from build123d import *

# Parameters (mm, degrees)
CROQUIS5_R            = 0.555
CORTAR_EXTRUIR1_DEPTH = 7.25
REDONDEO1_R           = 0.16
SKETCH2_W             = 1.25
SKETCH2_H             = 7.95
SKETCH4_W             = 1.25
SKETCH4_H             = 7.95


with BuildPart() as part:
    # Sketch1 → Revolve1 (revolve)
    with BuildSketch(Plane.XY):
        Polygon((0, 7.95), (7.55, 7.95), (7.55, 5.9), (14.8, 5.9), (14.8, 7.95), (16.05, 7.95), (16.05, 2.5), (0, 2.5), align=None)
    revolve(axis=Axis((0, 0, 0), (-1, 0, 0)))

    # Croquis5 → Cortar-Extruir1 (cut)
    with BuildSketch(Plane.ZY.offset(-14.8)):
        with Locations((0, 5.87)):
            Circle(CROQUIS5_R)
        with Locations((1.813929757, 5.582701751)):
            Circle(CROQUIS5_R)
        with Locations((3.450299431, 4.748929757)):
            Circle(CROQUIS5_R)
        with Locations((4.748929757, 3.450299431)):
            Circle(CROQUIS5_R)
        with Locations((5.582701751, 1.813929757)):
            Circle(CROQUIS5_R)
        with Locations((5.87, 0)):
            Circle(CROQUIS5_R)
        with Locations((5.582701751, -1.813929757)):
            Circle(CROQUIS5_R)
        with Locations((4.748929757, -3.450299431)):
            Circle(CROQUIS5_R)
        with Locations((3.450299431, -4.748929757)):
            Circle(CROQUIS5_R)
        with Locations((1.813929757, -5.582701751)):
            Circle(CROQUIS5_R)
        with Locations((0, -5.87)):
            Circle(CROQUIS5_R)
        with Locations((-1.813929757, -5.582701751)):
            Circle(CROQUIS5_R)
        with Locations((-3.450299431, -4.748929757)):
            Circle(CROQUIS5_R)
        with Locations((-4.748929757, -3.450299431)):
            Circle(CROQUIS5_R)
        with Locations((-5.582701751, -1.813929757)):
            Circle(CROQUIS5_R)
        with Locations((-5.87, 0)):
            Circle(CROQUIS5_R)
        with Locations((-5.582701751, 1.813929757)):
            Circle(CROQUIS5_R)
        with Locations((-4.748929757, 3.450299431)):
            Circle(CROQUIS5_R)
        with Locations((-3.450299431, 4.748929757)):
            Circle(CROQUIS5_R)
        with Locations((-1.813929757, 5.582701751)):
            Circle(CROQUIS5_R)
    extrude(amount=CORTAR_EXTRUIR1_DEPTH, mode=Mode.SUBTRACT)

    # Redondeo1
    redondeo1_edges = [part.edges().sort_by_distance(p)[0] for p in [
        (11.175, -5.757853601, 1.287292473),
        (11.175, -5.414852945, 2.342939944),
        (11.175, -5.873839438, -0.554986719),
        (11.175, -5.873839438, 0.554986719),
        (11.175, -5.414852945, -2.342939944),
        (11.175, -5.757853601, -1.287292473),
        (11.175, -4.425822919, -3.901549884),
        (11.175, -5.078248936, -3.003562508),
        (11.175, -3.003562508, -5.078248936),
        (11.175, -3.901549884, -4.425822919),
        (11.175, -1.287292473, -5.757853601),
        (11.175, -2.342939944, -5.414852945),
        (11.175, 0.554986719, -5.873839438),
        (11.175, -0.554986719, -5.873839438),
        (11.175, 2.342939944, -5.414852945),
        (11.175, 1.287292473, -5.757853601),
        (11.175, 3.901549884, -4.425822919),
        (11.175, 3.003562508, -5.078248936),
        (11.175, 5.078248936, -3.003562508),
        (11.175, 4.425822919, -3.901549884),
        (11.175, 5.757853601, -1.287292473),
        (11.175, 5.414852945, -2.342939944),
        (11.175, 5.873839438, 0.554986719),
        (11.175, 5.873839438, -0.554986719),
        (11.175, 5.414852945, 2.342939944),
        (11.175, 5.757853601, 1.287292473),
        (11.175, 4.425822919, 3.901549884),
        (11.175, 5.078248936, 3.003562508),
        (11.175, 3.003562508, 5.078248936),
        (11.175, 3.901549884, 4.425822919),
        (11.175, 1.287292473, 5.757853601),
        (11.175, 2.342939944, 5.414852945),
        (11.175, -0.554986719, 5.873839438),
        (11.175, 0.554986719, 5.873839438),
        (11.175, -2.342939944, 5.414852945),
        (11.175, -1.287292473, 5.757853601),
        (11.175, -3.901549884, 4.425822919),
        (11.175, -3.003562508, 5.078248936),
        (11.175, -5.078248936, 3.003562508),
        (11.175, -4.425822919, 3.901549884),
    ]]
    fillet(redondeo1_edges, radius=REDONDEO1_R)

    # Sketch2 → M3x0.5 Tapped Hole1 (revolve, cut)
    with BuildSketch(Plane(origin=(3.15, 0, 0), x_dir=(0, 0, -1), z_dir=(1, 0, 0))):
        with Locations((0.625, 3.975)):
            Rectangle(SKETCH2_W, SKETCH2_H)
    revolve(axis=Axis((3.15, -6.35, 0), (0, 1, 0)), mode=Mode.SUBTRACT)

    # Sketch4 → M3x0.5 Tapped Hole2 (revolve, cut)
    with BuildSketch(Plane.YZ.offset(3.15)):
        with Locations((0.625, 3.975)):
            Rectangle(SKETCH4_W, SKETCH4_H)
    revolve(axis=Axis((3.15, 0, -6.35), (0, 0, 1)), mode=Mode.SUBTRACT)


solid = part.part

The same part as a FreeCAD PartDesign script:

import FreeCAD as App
import Part
import Sketcher
Q = App.Units.Quantity


def edges_at(feature, points):
    """Names of the edges that pass closest to the given points."""
    edges = feature.Shape.Edges
    near = lambda p: min(range(len(edges)), key=lambda i: edges[i].distToShape(Part.Vertex(*p))[0])
    return sorted({f"Edge{near(p) + 1}" for p in points})


def add_polygon(sketch, points):
    """Adds a closed chain of lines whose ends are joined by coincident constraints."""
    first, n = sketch.GeometryCount, len(points)
    for a, b in zip(points, points[1:] + points[:1]):
        sketch.addGeometry(Part.LineSegment(App.Vector(*a, 0), App.Vector(*b, 0)), False)
    for i in range(n):
        sketch.addConstraint(Sketcher.Constraint("Coincident", first + i, 2, first + (i + 1) % n, 1))

doc = App.newDocument("Part")
body = doc.addObject("PartDesign::Body", "Body")

sketch1 = doc.addObject("Sketcher::SketchObject", "Sketch")
body.addObject(sketch1)
sketch1.AttachmentSupport = (doc.XY_Plane, [""])
sketch1.MapMode = "FlatFace"
add_polygon(sketch1, [(7.5, 8), (0, 8), (0, 2.5), (16.1, 2.5), (16.1, 8), (14.8, 8), (14.8, 5.9), (7.5, 5.9)])
sketch1.addConstraint([
    Sketcher.Constraint("Horizontal", 0),
    Sketcher.Constraint("Vertical", 1),
    Sketcher.Constraint("Horizontal", 2),
    Sketcher.Constraint("Vertical", 3),
    Sketcher.Constraint("Horizontal", 4),
    Sketcher.Constraint("Vertical", 5),
    Sketcher.Constraint("Horizontal", 6),
    Sketcher.Constraint("Vertical", 7),
    Sketcher.Constraint("PointOnObject", 0, 2, -2),
    Sketcher.Constraint("Horizontal", 0, 2, 3, 2),
    Sketcher.Constraint("DistanceX", 0, 2, 0, 1, Q("7.55 mm")),
    Sketcher.Constraint("DistanceX", 2, 1, 2, 2, Q("16.05 mm")),
    Sketcher.Constraint("DistanceX", 4, 2, 4, 1, Q("1.25 mm")),
    Sketcher.Constraint("DistanceY", 1, 2, 1, 1, Q("5.45 mm")),
    Sketcher.Constraint("DistanceY", 5, 2, 5, 1, Q("2.05 mm")),
    Sketcher.Constraint("DistanceY", -1, 1, 1, 2, Q("2.5 mm")),
])
revolution = doc.addObject("PartDesign::Revolution", "Revolution")
body.addObject(revolution)
revolution.Profile = sketch1
revolution.ReferenceAxis = (sketch1, ["H_Axis"])
revolution.Angle = 360

sketch2 = doc.addObject("Sketcher::SketchObject", "Sketch001")
body.addObject(sketch2)
sketch2.AttachmentSupport = (doc.YZ_Plane, [""])
sketch2.MapMode = "FlatFace"
sketch2.AttachmentOffset = App.Placement(App.Vector(0, 0, 14.8), App.Rotation())
sketch2.addGeometry([
    Part.Circle(App.Vector(5.9, 0, 0), App.Vector(0, 0, 1), 0.6),
    Part.Circle(App.Vector(5.6, 1.8, 0), App.Vector(0, 0, 1), 0.6),
    Part.Circle(App.Vector(4.7, 3.5, 0), App.Vector(0, 0, 1), 0.6),
    Part.Circle(App.Vector(3.5, 4.7, 0), App.Vector(0, 0, 1), 0.6),
    Part.Circle(App.Vector(1.8, 5.6, 0), App.Vector(0, 0, 1), 0.6),
    Part.Circle(App.Vector(0, 5.9, 0), App.Vector(0, 0, 1), 0.6),
    Part.Circle(App.Vector(-1.8, 5.6, 0), App.Vector(0, 0, 1), 0.6),
    Part.Circle(App.Vector(-3.5, 4.7, 0), App.Vector(0, 0, 1), 0.6),
    Part.Circle(App.Vector(-4.7, 3.5, 0), App.Vector(0, 0, 1), 0.6),
    Part.Circle(App.Vector(-5.6, 1.8, 0), App.Vector(0, 0, 1), 0.6),
    Part.Circle(App.Vector(-5.9, 0, 0), App.Vector(0, 0, 1), 0.6),
    Part.Circle(App.Vector(-5.6, -1.8, 0), App.Vector(0, 0, 1), 0.6),
    Part.Circle(App.Vector(-4.7, -3.5, 0), App.Vector(0, 0, 1), 0.6),
    Part.Circle(App.Vector(-3.5, -4.7, 0), App.Vector(0, 0, 1), 0.6),
    Part.Circle(App.Vector(-1.8, -5.6, 0), App.Vector(0, 0, 1), 0.6),
    Part.Circle(App.Vector(0, -5.9, 0), App.Vector(0, 0, 1), 0.6),
    Part.Circle(App.Vector(1.8, -5.6, 0), App.Vector(0, 0, 1), 0.6),
    Part.Circle(App.Vector(3.5, -4.7, 0), App.Vector(0, 0, 1), 0.6),
    Part.Circle(App.Vector(4.7, -3.5, 0), App.Vector(0, 0, 1), 0.6),
    Part.Circle(App.Vector(5.6, -1.8, 0), App.Vector(0, 0, 1), 0.6),
], False)
sketch2.addConstraint([
    Sketcher.Constraint("Equal", 0, 1),
    Sketcher.Constraint("Equal", 1, 2),
    Sketcher.Constraint("Equal", 2, 3),
    Sketcher.Constraint("Equal", 3, 4),
    Sketcher.Constraint("Equal", 4, 5),
    Sketcher.Constraint("Equal", 5, 6),
    Sketcher.Constraint("Equal", 6, 7),
    Sketcher.Constraint("Equal", 7, 8),
    Sketcher.Constraint("Equal", 8, 9),
    Sketcher.Constraint("Equal", 9, 10),
    Sketcher.Constraint("Equal", 10, 11),
    Sketcher.Constraint("Equal", 11, 12),
    Sketcher.Constraint("Equal", 12, 13),
    Sketcher.Constraint("Equal", 13, 14),
    Sketcher.Constraint("Equal", 14, 15),
    Sketcher.Constraint("Equal", 15, 16),
    Sketcher.Constraint("Equal", 16, 17),
    Sketcher.Constraint("Equal", 17, 18),
    Sketcher.Constraint("Equal", 18, 19),
    Sketcher.Constraint("Symmetric", 0, 3, 10, 3, -1, 1),
    Sketcher.Constraint("Symmetric", 1, 3, 11, 3, -1, 1),
    Sketcher.Constraint("Symmetric", 2, 3, 12, 3, -1, 1),
    Sketcher.Constraint("Symmetric", 3, 3, 13, 3, -1, 1),
    Sketcher.Constraint("Symmetric", 4, 3, 14, 3, -1, 1),
    Sketcher.Constraint("Symmetric", 5, 3, 15, 3, -1, 1),
    Sketcher.Constraint("Symmetric", 6, 3, 16, 3, -1, 1),
    Sketcher.Constraint("Symmetric", 7, 3, 17, 3, -1, 1),
    Sketcher.Constraint("Symmetric", 8, 3, 18, 3, -1, 1),
    Sketcher.Constraint("Symmetric", 9, 3, 19, 3, -1, 1),
    Sketcher.Constraint("Symmetric", 4, 3, 6, 3, -2),
    Sketcher.Constraint("Symmetric", 3, 3, 7, 3, -2),
    Sketcher.Constraint("Symmetric", 2, 3, 8, 3, -2),
    Sketcher.Constraint("Symmetric", 1, 3, 9, 3, -2),
    Sketcher.Constraint("PointOnObject", 0, 3, -1),
    Sketcher.Constraint("PointOnObject", 5, 3, -2),
    Sketcher.Constraint("Diameter", 0, Q("1.11 mm")),
    Sketcher.Constraint("DistanceX", -1, 1, 0, 3, Q("5.87 mm")),
    Sketcher.Constraint("DistanceY", -1, 1, 5, 3, Q("5.87 mm")),
    Sketcher.Constraint("DistanceY", 1, 3, 3, 3, Q("2.935 mm")),
    Sketcher.Constraint("DistanceX", 4, 3, 2, 3, Q("2.935 mm")),
    Sketcher.Constraint("DistanceX", -1, 1, 1, 3, Q("5.582702 mm")),
    Sketcher.Constraint("DistanceY", -1, 1, 2, 3, Q("3.450299 mm")),
    Sketcher.Constraint("DistanceX", -1, 1, 3, 3, Q("3.450299 mm")),
    Sketcher.Constraint("DistanceY", -1, 1, 4, 3, Q("5.582702 mm")),
    Sketcher.Constraint("DistanceY", -1, 1, 1, 3, Q("1.81393 mm")),
    Sketcher.Constraint("DistanceX", -1, 1, 2, 3, Q("4.74893 mm")),
])
pocket1 = doc.addObject("PartDesign::Pocket", "Pocket")
body.addObject(pocket1)
pocket1.Profile = sketch2
pocket1.Length = 7.25
doc.recompute()

fillet = doc.addObject("PartDesign::Fillet", "Fillet")
body.addObject(fillet)
fillet.Base = (pocket1, edges_at(pocket1, [
    (11.175, -5.758, 1.287),
    (11.175, -5.415, 2.343),
    (11.175, -5.874, -0.555),
    (11.175, -5.874, 0.555),
    (11.175, -5.415, -2.343),
    (11.175, -5.758, -1.287),
    (11.175, -4.426, -3.902),
    (11.175, -5.078, -3.004),
    (11.175, -3.004, -5.078),
    (11.175, -3.902, -4.426),
    (11.175, -1.287, -5.758),
    (11.175, -2.343, -5.415),
    (11.175, 0.555, -5.874),
    (11.175, -0.555, -5.874),
    (11.175, 2.343, -5.415),
    (11.175, 1.287, -5.758),
    (11.175, 3.902, -4.426),
    (11.175, 3.004, -5.078),
    (11.175, 5.078, -3.004),
    (11.175, 4.426, -3.902),
    (11.175, 5.758, -1.287),
    (11.175, 5.415, -2.343),
    (11.175, 5.874, 0.555),
    (11.175, 5.874, -0.555),
    (11.175, 5.415, 2.343),
    (11.175, 5.758, 1.287),
    (11.175, 4.426, 3.902),
    (11.175, 5.078, 3.004),
    (11.175, 3.004, 5.078),
    (11.175, 3.902, 4.426),
    (11.175, 1.287, 5.758),
    (11.175, 2.343, 5.415),
    (11.175, -0.555, 5.874),
    (11.175, 0.555, 5.874),
    (11.175, -2.343, 5.415),
    (11.175, -1.287, 5.758),
    (11.175, -3.902, 4.426),
    (11.175, -3.004, 5.078),
    (11.175, -5.078, 3.004),
    (11.175, -4.426, 3.902),
]))
fillet.Radius = 0.16

sketch3 = doc.addObject("Sketcher::SketchObject", "Sketch002")
body.addObject(sketch3)
sketch3.AttachmentSupport = (doc.YZ_Plane, [""])
sketch3.MapMode = "FlatFace"
sketch3.AttachmentOffset = App.Placement(App.Vector(0, 0, 3.15), App.Rotation())
add_polygon(sketch3, [(8, 0), (0, 0), (0, -1.2), (8, -1.2)])
sketch3.addConstraint([
    Sketcher.Constraint("Horizontal", 0),
    Sketcher.Constraint("Vertical", 1),
    Sketcher.Constraint("Horizontal", 2),
    Sketcher.Constraint("Vertical", 3),
    Sketcher.Constraint("Coincident", 0, 2, -1, 1),
    Sketcher.Constraint("DistanceX", 0, 2, 0, 1, Q("7.95 mm")),
    Sketcher.Constraint("DistanceY", 1, 2, 1, 1, Q("1.25 mm")),
])
groove = doc.addObject("PartDesign::Groove", "Groove")
body.addObject(groove)
groove.Profile = sketch3
groove.ReferenceAxis = (sketch3, ["H_Axis"])
groove.Angle = 360

sketch4 = doc.addObject("Sketcher::SketchObject", "Sketch003")
body.addObject(sketch4)
sketch4.AttachmentSupport = (doc.YZ_Plane, [""])
sketch4.MapMode = "FlatFace"
sketch4.AttachmentOffset = App.Placement(App.Vector(0, 0, 3.15), App.Rotation())
add_polygon(sketch4, [(0, 8), (0, 0), (1.2, 0), (1.2, 8)])
sketch4.addConstraint([
    Sketcher.Constraint("Vertical", 0),
    Sketcher.Constraint("Horizontal", 1),
    Sketcher.Constraint("Vertical", 2),
    Sketcher.Constraint("Horizontal", 3),
    Sketcher.Constraint("Coincident", 0, 2, -1, 1),
    Sketcher.Constraint("DistanceX", 1, 1, 1, 2, Q("1.25 mm")),
    Sketcher.Constraint("DistanceY", 0, 2, 0, 1, Q("7.95 mm")),
])
groove2 = doc.addObject("PartDesign::Groove", "Groove001")
body.addObject(groove2)
groove2.Profile = sketch4
groove2.ReferenceAxis = (sketch4, ["V_Axis"])
groove2.Angle = 360

doc.recompute()
